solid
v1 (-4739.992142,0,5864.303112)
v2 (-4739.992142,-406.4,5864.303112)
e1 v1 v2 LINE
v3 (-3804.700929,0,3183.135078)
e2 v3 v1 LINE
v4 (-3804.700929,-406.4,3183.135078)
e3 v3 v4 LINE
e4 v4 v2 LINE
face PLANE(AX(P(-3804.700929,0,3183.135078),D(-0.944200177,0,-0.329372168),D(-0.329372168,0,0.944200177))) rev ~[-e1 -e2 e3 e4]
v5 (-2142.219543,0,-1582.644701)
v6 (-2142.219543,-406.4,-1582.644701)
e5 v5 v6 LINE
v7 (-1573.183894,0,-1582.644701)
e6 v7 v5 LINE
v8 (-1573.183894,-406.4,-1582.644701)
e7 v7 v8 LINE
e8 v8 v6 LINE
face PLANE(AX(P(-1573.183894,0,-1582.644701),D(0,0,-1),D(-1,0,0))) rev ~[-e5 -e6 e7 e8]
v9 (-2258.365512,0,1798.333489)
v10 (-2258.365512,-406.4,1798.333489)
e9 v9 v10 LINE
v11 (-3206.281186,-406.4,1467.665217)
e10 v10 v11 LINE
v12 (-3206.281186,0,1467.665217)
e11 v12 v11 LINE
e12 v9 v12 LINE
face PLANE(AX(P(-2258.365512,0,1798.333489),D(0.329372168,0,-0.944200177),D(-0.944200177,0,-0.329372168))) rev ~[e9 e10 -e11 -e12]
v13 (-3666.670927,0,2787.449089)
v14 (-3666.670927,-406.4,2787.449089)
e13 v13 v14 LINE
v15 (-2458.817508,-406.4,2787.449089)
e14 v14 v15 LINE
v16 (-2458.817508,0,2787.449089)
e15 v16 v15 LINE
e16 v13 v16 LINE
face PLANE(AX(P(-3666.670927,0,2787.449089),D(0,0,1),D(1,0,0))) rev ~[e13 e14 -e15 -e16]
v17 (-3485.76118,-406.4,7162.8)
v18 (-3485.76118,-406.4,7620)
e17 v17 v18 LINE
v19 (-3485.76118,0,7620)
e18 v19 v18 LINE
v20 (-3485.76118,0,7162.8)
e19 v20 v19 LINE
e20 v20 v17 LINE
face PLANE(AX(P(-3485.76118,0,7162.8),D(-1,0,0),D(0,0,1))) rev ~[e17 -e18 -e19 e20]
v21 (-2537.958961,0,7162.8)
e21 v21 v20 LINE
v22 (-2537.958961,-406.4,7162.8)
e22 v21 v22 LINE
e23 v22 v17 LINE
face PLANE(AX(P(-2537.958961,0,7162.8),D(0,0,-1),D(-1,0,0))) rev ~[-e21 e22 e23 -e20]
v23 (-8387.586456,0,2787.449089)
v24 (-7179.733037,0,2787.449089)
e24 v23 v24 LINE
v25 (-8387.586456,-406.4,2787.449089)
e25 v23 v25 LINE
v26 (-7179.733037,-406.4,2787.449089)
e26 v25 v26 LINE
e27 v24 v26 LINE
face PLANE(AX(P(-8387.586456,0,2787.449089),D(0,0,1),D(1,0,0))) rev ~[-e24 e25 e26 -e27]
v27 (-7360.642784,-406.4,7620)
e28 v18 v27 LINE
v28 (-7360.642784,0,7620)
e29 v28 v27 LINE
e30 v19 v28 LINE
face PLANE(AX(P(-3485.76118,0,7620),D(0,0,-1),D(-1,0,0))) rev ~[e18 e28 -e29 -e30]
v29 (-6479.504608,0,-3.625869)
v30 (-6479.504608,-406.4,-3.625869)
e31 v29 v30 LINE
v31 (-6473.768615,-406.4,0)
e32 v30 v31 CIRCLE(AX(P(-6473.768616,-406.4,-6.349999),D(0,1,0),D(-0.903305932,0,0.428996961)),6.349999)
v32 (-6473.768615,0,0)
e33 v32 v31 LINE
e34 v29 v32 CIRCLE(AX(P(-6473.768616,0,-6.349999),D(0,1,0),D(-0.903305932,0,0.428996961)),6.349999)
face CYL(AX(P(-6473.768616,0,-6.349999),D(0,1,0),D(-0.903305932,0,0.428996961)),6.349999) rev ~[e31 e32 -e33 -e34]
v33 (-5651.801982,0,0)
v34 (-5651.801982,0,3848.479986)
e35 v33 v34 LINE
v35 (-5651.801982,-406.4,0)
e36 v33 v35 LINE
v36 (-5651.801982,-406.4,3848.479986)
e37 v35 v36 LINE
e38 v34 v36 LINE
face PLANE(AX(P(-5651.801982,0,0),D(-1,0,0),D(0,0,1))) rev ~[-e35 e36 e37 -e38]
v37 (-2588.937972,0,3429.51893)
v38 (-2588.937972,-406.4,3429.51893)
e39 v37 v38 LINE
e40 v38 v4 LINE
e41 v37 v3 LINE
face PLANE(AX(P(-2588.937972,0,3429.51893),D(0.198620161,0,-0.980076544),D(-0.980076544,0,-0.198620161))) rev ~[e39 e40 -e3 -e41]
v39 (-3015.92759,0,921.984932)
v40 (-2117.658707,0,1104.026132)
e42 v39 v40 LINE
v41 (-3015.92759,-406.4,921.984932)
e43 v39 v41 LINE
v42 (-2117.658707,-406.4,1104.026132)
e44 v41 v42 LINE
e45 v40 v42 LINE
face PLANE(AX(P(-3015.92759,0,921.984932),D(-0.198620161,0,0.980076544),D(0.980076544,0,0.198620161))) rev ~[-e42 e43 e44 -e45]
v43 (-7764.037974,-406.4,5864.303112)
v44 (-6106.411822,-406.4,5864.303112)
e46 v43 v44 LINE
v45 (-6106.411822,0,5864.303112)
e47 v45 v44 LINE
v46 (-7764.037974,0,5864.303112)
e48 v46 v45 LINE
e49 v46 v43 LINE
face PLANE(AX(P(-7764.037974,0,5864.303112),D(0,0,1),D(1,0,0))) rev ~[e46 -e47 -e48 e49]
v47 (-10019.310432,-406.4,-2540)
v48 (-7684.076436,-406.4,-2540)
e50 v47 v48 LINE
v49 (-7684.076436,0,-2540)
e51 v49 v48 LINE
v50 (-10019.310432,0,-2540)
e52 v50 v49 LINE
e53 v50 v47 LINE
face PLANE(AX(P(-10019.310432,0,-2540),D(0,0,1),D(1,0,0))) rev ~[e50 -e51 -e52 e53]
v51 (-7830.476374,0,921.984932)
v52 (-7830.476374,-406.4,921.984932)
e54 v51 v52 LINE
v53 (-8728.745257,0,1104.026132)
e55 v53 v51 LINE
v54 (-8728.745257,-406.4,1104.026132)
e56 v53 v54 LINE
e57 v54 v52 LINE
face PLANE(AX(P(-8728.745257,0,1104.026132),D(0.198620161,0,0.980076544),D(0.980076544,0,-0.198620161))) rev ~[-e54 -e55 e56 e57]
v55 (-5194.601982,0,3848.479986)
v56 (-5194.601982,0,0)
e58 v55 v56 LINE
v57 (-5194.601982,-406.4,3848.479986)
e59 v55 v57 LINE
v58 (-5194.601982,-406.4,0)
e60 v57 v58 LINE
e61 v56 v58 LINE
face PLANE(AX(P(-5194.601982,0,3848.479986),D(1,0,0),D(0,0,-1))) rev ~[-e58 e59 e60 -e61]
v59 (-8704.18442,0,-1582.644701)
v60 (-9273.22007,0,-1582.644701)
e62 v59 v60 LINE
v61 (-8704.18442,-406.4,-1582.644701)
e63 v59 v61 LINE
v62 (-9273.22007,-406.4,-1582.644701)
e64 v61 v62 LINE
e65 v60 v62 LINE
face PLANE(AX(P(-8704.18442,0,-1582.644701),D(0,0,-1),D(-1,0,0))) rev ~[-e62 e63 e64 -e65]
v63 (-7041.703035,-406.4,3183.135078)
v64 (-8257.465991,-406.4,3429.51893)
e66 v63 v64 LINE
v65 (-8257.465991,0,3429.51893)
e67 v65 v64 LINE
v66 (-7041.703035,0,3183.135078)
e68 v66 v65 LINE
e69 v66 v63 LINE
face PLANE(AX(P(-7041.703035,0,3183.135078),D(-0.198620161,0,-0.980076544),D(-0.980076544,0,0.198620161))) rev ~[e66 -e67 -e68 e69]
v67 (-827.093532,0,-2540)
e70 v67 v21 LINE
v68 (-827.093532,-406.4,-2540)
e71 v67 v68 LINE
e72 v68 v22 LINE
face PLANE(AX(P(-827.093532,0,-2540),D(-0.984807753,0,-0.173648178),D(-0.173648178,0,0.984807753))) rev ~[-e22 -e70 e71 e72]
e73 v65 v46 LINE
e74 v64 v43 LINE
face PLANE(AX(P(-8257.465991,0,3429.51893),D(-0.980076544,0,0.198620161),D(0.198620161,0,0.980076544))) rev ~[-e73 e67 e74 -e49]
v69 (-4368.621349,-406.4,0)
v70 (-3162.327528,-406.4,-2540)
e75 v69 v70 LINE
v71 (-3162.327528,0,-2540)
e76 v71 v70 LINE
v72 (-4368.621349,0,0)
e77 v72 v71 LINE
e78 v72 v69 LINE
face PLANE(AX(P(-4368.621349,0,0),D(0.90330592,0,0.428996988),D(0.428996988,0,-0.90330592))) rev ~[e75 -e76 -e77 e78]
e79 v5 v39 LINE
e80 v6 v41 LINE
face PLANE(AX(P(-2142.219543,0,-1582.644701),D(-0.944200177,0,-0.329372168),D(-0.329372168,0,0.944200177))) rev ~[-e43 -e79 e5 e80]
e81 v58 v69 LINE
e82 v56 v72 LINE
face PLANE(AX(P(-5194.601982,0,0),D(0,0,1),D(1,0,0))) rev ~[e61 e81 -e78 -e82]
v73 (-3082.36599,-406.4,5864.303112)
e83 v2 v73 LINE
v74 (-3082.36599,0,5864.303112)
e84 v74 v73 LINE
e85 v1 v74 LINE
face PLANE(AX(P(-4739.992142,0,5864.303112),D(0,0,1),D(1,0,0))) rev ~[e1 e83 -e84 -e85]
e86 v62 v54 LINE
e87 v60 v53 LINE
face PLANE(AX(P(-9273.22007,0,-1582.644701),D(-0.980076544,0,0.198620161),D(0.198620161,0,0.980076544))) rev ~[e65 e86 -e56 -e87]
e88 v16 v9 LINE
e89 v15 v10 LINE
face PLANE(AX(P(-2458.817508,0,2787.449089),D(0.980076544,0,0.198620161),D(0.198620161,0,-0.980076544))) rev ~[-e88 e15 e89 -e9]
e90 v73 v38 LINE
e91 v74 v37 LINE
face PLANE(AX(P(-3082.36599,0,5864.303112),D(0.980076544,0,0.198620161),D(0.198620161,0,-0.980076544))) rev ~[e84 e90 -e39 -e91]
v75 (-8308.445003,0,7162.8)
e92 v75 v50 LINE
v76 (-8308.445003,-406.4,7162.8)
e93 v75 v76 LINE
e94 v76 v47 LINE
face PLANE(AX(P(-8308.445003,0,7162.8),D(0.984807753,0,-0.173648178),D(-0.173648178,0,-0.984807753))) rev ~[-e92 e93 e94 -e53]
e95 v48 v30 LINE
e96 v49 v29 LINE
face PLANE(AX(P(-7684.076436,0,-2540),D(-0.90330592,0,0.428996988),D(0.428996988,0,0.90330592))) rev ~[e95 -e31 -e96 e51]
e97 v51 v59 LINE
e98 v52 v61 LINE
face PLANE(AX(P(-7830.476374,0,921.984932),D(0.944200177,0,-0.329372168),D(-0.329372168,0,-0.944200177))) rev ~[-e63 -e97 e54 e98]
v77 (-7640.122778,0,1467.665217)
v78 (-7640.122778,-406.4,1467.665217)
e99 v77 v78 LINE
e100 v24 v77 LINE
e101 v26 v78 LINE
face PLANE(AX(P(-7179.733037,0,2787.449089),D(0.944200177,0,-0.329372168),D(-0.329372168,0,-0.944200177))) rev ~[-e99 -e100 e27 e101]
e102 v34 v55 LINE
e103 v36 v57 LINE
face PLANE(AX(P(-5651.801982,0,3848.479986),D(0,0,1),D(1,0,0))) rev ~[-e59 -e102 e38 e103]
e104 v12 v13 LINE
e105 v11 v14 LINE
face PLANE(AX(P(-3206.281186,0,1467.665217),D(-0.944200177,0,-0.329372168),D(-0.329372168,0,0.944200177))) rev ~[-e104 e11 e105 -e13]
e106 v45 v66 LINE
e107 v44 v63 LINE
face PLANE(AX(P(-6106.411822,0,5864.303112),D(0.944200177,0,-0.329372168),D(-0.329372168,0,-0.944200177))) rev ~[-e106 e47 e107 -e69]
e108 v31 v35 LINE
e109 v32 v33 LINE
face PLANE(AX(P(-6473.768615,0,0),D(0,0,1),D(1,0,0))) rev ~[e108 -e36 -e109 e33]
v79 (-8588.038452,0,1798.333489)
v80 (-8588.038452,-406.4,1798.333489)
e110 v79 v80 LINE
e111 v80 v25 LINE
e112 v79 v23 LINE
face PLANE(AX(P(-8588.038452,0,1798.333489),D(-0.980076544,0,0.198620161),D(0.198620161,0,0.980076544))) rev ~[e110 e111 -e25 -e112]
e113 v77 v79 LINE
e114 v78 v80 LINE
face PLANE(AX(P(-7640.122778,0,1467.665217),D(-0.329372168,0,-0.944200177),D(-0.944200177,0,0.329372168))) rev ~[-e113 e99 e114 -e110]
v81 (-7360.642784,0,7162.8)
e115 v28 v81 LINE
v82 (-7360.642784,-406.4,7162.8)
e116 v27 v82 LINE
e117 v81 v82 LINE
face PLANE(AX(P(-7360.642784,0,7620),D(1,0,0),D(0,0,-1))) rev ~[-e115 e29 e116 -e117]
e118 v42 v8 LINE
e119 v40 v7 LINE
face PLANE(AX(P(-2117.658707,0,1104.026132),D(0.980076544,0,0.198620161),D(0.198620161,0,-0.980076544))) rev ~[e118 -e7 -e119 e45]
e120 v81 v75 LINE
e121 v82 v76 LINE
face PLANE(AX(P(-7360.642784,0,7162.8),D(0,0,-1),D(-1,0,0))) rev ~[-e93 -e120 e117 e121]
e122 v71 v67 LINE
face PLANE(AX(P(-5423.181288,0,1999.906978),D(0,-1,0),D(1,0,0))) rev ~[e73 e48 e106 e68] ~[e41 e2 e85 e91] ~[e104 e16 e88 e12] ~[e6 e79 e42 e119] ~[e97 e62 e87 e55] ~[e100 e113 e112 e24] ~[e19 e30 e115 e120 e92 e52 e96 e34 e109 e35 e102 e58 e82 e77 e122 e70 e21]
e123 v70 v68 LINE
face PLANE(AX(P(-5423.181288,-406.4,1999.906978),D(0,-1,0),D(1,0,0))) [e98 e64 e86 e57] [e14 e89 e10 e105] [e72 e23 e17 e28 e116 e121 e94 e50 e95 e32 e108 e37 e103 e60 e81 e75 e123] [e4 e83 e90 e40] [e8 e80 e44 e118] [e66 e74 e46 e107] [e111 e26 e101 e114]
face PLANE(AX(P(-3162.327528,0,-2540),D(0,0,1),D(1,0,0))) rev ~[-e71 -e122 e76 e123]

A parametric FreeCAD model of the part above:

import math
import FreeCAD as App
import Part
import Sketcher

V = App.Vector
Q = App.Units.Quantity


def add_polygon(sketch, points):
    """Adds a closed chain of lines whose ends are joined by coincident constraints."""
    first, n = sketch.GeometryCount, len(points)
    for a, b in zip(points, points[1:] + points[:1]):
        sketch.addGeometry(Part.LineSegment(App.Vector(*a, 0), App.Vector(*b, 0)), False)
    for i in range(n):
        sketch.addConstraint(Sketcher.Constraint("Coincident", first + i, 2, first + (i + 1) % n, 1))

doc = App.newDocument("Part")
body = doc.addObject("PartDesign::Body", "Body")

# Sketch on XZ plane
sketch1 = body.newObject("Sketcher::SketchObject", "Sketch")
sketch1.AttachmentSupport = (doc.getObject("XZ_Plane"), [""])
sketch1.MapMode = "FlatFace"
sketch1.addGeometry(Part.LineSegment(V(-8308, 7163, 0), V(-10019, -2540, 0)), False)  # 0
sketch1.addGeometry(Part.LineSegment(V(-10019, -2540, 0), V(-7684, -2540, 0)), False)  # 1
sketch1.addGeometry(Part.LineSegment(V(-7684, -2540, 0), V(-6480, -4, 0)), False)  # 2
sketch1.addGeometry(Part.ArcOfCircle(Part.Circle(V(-6474, -6, 0), V(0, 0, 1), 6), math.radians(90), math.radians(155)), False)  # 3
sketch1.addGeometry(Part.LineSegment(V(-6474, 0, 0), V(-5652, 0, 0)), False)  # 4
sketch1.addGeometry(Part.LineSegment(V(-5652, 0, 0), V(-5652, 3848, 0)), False)  # 5
sketch1.addGeometry(Part.LineSegment(V(-5652, 3848, 0), V(-5195, 3848, 0)), False)  # 6
sketch1.addGeometry(Part.LineSegment(V(-5195, 3848, 0), V(-5195, 0, 0)), False)  # 7
sketch1.addGeometry(Part.LineSegment(V(-5195, 0, 0), V(-4369, 0, 0)), False)  # 8
sketch1.addGeometry(Part.LineSegment(V(-4369, 0, 0), V(-3162, -2540, 0)), False)  # 9
sketch1.addGeometry(Part.LineSegment(V(-3162, -2540, 0), V(-827, -2540, 0)), False)  # 10
sketch1.addGeometry(Part.LineSegment(V(-827, -2540, 0), V(-2538, 7163, 0)), False)  # 11
sketch1.addGeometry(Part.LineSegment(V(-2538, 7163, 0), V(-3486, 7163, 0)), False)  # 12
sketch1.addGeometry(Part.LineSegment(V(-3486, 7163, 0), V(-3486, 7620, 0)), False)  # 13
sketch1.addGeometry(Part.LineSegment(V(-3486, 7620, 0), V(-7361, 7620, 0)), False)  # 14
sketch1.addGeometry(Part.LineSegment(V(-7361, 7620, 0), V(-7361, 7163, 0)), False)  # 15
sketch1.addGeometry(Part.LineSegment(V(-7361, 7163, 0), V(-8308, 7163, 0)), False)  # 16
add_polygon(sketch1, [(-8729, 1104), (-7830, 922), (-8704, -1583), (-9273, -1583)])  # lines 17-20
add_polygon(sketch1, [(-7640, 1468), (-8588, 1798), (-8388, 2787), (-7180, 2787)])  # lines 21-24
add_polygon(sketch1, [(-3016, 922), (-2118, 1104), (-1573, -1583), (-2142, -1583)])  # lines 25-28
add_polygon(sketch1, [(-3206, 1468), (-3667, 2787), (-2459, 2787), (-2258, 1798)])  # lines 29-32
add_polygon(sketch1, [(-8257, 3430), (-7764, 5864), (-6106, 5864), (-7042, 3183)])  # lines 33-36
add_polygon(sketch1, [(-3805, 3183), (-4740, 5864), (-3082, 5864), (-2589, 3430)])  # lines 37-40
sketch1.addConstraint([
    Sketcher.Constraint("Coincident", 0, 2, 1, 1),
    Sketcher.Constraint("Coincident", 1, 2, 2, 1),
    Sketcher.Constraint("Tangent", 2, 2, 3, 2),
    Sketcher.Constraint("Tangent", 3, 1, 4, 1),
    Sketcher.Constraint("Coincident", 4, 2, 5, 1),
    Sketcher.Constraint("Coincident", 5, 2, 6, 1),
    Sketcher.Constraint("Coincident", 6, 2, 7, 1),
    Sketcher.Constraint("Coincident", 7, 2, 8, 1),
    Sketcher.Constraint("Coincident", 8, 2, 9, 1),
    Sketcher.Constraint("Coincident", 9, 2, 10, 1),
    Sketcher.Constraint("Coincident", 10, 2, 11, 1),
    Sketcher.Constraint("Coincident", 11, 2, 12, 1),
    Sketcher.Constraint("Coincident", 12, 2, 13, 1),
    Sketcher.Constraint("Coincident", 13, 2, 14, 1),
    Sketcher.Constraint("Coincident", 14, 2, 15, 1),
    Sketcher.Constraint("Coincident", 15, 2, 16, 1),
    Sketcher.Constraint("Coincident", 16, 2, 0, 1),
    Sketcher.Constraint("Horizontal", 1),
    Sketcher.Constraint("Horizontal", 4),
    Sketcher.Constraint("Vertical", 5),
    Sketcher.Constraint("Horizontal", 6),
    Sketcher.Constraint("Vertical", 7),
    Sketcher.Constraint("Horizontal", 8),
    Sketcher.Constraint("Horizontal", 10),
    Sketcher.Constraint("Horizontal", 12),
    Sketcher.Constraint("Vertical", 13),
    Sketcher.Constraint("Horizontal", 14),
    Sketcher.Constraint("Vertical", 15),
    Sketcher.Constraint("Horizontal", 16),
    Sketcher.Constraint("Horizontal", 19),
    Sketcher.Constraint("Horizontal", 23),
    Sketcher.Constraint("Horizontal", 27),
    Sketcher.Constraint("Horizontal", 30),
    Sketcher.Constraint("Horizontal", 34),
    Sketcher.Constraint("Horizontal", 38),
    Sketcher.Constraint("PointOnObject", 3, 1, -1),
    Sketcher.Constraint("PointOnObject", 7, 2, -1),
    Sketcher.Constraint("Perpendicular", 17, 20),
    Sketcher.Constraint("Perpendicular", 18, 21),
    Sketcher.Constraint("Parallel", 20, 22),
    Sketcher.Constraint("Perpendicular", 21, 24),
    Sketcher.Constraint("Perpendicular", 25, 26),
    Sketcher.Constraint("Parallel", 28, 29),
    Sketcher.Constraint("Parallel", 26, 31),
    Sketcher.Constraint("Perpendicular", 29, 32),
    Sketcher.Constraint("Parallel", 22, 33),
    Sketcher.Constraint("Parallel", 24, 35),
    Sketcher.Constraint("Perpendicular", 33, 36),
    Sketcher.Constraint("Perpendicular", 32, 37),
    Sketcher.Constraint("Parallel", 31, 39),
    Sketcher.Constraint("Perpendicular", 39, 40),
    Sketcher.Constraint("Horizontal", 1, 2, 9, 2),
    Sketcher.Constraint("Horizontal", 12, 2, 15, 2),
    Sketcher.Constraint("Horizontal", 20, 2, 25, 2),
    Sketcher.Constraint("Horizontal", 19, 2, 26, 2),
    Sketcher.Constraint("Horizontal", 17, 2, 28, 2),
    Sketcher.Constraint("Horizontal", 23, 2, 29, 2),
    Sketcher.Constraint("Horizontal", 21, 2, 31, 2),
    Sketcher.Constraint("Horizontal", 24, 2, 32, 2),
    Sketcher.Constraint("Horizontal", 34, 2, 37, 2),
    Sketcher.Constraint("Horizontal", 36, 2, 39, 2),
    Sketcher.Constraint("Horizontal", 35, 2, 40, 2),
    Sketcher.Constraint("Equal", 1, 10),
    Sketcher.Constraint("Equal", 12, 16),
    Sketcher.Constraint("Equal", 19, 27),
    Sketcher.Constraint("Equal", 34, 38),
    Sketcher.Constraint("Equal", 6, 13),
    Sketcher.Constraint("Equal", 0, 11),
    Sketcher.Constraint("DistanceX", 6, 1, 6, 2, Q("18 in")),
    Sketcher.Constraint("Radius", 3, Q("0.25 in")),
    Sketcher.Constraint("DistanceY", 0, 2, -1, 1, Q("100 in")),
    Sketcher.Constraint("DistanceY", -1, 1, 11, 2, Q("282 in")),
    Sketcher.Constraint("Angle", 0, Q("-100 deg")),
    Sketcher.Constraint("DistanceX", 12, 2, 12, 1, Q("947.802219 mm")),
    Sketcher.Constraint("DistanceX", 19, 2, 19, 1, Q("569.03565 mm")),
    Sketcher.Constraint("DistanceX", 23, 1, 23, 2, Q("1207.853419 mm")),
    Sketcher.Constraint("DistanceX", 34, 1, 34, 2, Q("1657.626152 mm")),
    Sketcher.Constraint("DistanceY", 18, 2, -1, 1, Q("1582.644701 mm")),
    Sketcher.Constraint("DistanceX", 5, 2, 12, 2, Q("2166.040802 mm")),
    Sketcher.Constraint("DistanceX", 14, 2, 5, 2, Q("1708.840802 mm")),
    Sketcher.Constraint("DistanceY", 2, 2, 17, 2, Q("925.610801 mm")),
    Sketcher.Constraint("DistanceY", 17, 2, 20, 2, Q("182.0412 mm")),
    Sketcher.Constraint("DistanceY", 21, 2, 22, 2, Q("989.1156 mm")),
    Sketcher.Constraint("DistanceX", 20, 2, 22, 2, Q("341.158801 mm")),
    Sketcher.Constraint("DistanceX", 30, 2, 25, 2, Q("341.158801 mm")),
    Sketcher.Constraint("DistanceX", 23, 2, 35, 2, Q("138.030002 mm")),
    Sketcher.Constraint("DistanceY", 25, 2, 39, 2, Q("2325.492798 mm")),
    Sketcher.Constraint("DistanceX", 40, 2, 29, 2, Q("138.030002 mm")),
    Sketcher.Constraint("Distance", 9, Q("2811.893451 mm")),
    Sketcher.Constraint("Distance", 20, Q("2741.286739 mm")),
    Sketcher.Constraint("Distance", 33, Q("2484.279618 mm")),
    Sketcher.Constraint("DistanceX", 1, 1, 1, 2, Q("2335.233996 mm")),
    Sketcher.Constraint("DistanceX", 4, 1, 4, 2, Q("821.966633 mm")),
    Sketcher.Constraint("DistanceY", 5, 1, 5, 2, Q("3848.479986 mm")),
    Sketcher.Constraint("DistanceX", 2, 2, -1, 1, Q("6479.504608 mm")),
    Sketcher.Constraint("DistanceX", 18, 2, -1, 1, Q("8704.18442 mm")),
    Sketcher.Constraint("DistanceY", -1, 1, 21, 2, Q("1798.333489 mm")),
    Sketcher.Constraint("DistanceX", 28, 2, -1, 1, Q("3015.92759 mm")),
])
pad1 = body.newObject("PartDesign::Pad", "Pad")
pad1.Profile = sketch1
pad1.Length = Q("16 in")

doc.recompute()
